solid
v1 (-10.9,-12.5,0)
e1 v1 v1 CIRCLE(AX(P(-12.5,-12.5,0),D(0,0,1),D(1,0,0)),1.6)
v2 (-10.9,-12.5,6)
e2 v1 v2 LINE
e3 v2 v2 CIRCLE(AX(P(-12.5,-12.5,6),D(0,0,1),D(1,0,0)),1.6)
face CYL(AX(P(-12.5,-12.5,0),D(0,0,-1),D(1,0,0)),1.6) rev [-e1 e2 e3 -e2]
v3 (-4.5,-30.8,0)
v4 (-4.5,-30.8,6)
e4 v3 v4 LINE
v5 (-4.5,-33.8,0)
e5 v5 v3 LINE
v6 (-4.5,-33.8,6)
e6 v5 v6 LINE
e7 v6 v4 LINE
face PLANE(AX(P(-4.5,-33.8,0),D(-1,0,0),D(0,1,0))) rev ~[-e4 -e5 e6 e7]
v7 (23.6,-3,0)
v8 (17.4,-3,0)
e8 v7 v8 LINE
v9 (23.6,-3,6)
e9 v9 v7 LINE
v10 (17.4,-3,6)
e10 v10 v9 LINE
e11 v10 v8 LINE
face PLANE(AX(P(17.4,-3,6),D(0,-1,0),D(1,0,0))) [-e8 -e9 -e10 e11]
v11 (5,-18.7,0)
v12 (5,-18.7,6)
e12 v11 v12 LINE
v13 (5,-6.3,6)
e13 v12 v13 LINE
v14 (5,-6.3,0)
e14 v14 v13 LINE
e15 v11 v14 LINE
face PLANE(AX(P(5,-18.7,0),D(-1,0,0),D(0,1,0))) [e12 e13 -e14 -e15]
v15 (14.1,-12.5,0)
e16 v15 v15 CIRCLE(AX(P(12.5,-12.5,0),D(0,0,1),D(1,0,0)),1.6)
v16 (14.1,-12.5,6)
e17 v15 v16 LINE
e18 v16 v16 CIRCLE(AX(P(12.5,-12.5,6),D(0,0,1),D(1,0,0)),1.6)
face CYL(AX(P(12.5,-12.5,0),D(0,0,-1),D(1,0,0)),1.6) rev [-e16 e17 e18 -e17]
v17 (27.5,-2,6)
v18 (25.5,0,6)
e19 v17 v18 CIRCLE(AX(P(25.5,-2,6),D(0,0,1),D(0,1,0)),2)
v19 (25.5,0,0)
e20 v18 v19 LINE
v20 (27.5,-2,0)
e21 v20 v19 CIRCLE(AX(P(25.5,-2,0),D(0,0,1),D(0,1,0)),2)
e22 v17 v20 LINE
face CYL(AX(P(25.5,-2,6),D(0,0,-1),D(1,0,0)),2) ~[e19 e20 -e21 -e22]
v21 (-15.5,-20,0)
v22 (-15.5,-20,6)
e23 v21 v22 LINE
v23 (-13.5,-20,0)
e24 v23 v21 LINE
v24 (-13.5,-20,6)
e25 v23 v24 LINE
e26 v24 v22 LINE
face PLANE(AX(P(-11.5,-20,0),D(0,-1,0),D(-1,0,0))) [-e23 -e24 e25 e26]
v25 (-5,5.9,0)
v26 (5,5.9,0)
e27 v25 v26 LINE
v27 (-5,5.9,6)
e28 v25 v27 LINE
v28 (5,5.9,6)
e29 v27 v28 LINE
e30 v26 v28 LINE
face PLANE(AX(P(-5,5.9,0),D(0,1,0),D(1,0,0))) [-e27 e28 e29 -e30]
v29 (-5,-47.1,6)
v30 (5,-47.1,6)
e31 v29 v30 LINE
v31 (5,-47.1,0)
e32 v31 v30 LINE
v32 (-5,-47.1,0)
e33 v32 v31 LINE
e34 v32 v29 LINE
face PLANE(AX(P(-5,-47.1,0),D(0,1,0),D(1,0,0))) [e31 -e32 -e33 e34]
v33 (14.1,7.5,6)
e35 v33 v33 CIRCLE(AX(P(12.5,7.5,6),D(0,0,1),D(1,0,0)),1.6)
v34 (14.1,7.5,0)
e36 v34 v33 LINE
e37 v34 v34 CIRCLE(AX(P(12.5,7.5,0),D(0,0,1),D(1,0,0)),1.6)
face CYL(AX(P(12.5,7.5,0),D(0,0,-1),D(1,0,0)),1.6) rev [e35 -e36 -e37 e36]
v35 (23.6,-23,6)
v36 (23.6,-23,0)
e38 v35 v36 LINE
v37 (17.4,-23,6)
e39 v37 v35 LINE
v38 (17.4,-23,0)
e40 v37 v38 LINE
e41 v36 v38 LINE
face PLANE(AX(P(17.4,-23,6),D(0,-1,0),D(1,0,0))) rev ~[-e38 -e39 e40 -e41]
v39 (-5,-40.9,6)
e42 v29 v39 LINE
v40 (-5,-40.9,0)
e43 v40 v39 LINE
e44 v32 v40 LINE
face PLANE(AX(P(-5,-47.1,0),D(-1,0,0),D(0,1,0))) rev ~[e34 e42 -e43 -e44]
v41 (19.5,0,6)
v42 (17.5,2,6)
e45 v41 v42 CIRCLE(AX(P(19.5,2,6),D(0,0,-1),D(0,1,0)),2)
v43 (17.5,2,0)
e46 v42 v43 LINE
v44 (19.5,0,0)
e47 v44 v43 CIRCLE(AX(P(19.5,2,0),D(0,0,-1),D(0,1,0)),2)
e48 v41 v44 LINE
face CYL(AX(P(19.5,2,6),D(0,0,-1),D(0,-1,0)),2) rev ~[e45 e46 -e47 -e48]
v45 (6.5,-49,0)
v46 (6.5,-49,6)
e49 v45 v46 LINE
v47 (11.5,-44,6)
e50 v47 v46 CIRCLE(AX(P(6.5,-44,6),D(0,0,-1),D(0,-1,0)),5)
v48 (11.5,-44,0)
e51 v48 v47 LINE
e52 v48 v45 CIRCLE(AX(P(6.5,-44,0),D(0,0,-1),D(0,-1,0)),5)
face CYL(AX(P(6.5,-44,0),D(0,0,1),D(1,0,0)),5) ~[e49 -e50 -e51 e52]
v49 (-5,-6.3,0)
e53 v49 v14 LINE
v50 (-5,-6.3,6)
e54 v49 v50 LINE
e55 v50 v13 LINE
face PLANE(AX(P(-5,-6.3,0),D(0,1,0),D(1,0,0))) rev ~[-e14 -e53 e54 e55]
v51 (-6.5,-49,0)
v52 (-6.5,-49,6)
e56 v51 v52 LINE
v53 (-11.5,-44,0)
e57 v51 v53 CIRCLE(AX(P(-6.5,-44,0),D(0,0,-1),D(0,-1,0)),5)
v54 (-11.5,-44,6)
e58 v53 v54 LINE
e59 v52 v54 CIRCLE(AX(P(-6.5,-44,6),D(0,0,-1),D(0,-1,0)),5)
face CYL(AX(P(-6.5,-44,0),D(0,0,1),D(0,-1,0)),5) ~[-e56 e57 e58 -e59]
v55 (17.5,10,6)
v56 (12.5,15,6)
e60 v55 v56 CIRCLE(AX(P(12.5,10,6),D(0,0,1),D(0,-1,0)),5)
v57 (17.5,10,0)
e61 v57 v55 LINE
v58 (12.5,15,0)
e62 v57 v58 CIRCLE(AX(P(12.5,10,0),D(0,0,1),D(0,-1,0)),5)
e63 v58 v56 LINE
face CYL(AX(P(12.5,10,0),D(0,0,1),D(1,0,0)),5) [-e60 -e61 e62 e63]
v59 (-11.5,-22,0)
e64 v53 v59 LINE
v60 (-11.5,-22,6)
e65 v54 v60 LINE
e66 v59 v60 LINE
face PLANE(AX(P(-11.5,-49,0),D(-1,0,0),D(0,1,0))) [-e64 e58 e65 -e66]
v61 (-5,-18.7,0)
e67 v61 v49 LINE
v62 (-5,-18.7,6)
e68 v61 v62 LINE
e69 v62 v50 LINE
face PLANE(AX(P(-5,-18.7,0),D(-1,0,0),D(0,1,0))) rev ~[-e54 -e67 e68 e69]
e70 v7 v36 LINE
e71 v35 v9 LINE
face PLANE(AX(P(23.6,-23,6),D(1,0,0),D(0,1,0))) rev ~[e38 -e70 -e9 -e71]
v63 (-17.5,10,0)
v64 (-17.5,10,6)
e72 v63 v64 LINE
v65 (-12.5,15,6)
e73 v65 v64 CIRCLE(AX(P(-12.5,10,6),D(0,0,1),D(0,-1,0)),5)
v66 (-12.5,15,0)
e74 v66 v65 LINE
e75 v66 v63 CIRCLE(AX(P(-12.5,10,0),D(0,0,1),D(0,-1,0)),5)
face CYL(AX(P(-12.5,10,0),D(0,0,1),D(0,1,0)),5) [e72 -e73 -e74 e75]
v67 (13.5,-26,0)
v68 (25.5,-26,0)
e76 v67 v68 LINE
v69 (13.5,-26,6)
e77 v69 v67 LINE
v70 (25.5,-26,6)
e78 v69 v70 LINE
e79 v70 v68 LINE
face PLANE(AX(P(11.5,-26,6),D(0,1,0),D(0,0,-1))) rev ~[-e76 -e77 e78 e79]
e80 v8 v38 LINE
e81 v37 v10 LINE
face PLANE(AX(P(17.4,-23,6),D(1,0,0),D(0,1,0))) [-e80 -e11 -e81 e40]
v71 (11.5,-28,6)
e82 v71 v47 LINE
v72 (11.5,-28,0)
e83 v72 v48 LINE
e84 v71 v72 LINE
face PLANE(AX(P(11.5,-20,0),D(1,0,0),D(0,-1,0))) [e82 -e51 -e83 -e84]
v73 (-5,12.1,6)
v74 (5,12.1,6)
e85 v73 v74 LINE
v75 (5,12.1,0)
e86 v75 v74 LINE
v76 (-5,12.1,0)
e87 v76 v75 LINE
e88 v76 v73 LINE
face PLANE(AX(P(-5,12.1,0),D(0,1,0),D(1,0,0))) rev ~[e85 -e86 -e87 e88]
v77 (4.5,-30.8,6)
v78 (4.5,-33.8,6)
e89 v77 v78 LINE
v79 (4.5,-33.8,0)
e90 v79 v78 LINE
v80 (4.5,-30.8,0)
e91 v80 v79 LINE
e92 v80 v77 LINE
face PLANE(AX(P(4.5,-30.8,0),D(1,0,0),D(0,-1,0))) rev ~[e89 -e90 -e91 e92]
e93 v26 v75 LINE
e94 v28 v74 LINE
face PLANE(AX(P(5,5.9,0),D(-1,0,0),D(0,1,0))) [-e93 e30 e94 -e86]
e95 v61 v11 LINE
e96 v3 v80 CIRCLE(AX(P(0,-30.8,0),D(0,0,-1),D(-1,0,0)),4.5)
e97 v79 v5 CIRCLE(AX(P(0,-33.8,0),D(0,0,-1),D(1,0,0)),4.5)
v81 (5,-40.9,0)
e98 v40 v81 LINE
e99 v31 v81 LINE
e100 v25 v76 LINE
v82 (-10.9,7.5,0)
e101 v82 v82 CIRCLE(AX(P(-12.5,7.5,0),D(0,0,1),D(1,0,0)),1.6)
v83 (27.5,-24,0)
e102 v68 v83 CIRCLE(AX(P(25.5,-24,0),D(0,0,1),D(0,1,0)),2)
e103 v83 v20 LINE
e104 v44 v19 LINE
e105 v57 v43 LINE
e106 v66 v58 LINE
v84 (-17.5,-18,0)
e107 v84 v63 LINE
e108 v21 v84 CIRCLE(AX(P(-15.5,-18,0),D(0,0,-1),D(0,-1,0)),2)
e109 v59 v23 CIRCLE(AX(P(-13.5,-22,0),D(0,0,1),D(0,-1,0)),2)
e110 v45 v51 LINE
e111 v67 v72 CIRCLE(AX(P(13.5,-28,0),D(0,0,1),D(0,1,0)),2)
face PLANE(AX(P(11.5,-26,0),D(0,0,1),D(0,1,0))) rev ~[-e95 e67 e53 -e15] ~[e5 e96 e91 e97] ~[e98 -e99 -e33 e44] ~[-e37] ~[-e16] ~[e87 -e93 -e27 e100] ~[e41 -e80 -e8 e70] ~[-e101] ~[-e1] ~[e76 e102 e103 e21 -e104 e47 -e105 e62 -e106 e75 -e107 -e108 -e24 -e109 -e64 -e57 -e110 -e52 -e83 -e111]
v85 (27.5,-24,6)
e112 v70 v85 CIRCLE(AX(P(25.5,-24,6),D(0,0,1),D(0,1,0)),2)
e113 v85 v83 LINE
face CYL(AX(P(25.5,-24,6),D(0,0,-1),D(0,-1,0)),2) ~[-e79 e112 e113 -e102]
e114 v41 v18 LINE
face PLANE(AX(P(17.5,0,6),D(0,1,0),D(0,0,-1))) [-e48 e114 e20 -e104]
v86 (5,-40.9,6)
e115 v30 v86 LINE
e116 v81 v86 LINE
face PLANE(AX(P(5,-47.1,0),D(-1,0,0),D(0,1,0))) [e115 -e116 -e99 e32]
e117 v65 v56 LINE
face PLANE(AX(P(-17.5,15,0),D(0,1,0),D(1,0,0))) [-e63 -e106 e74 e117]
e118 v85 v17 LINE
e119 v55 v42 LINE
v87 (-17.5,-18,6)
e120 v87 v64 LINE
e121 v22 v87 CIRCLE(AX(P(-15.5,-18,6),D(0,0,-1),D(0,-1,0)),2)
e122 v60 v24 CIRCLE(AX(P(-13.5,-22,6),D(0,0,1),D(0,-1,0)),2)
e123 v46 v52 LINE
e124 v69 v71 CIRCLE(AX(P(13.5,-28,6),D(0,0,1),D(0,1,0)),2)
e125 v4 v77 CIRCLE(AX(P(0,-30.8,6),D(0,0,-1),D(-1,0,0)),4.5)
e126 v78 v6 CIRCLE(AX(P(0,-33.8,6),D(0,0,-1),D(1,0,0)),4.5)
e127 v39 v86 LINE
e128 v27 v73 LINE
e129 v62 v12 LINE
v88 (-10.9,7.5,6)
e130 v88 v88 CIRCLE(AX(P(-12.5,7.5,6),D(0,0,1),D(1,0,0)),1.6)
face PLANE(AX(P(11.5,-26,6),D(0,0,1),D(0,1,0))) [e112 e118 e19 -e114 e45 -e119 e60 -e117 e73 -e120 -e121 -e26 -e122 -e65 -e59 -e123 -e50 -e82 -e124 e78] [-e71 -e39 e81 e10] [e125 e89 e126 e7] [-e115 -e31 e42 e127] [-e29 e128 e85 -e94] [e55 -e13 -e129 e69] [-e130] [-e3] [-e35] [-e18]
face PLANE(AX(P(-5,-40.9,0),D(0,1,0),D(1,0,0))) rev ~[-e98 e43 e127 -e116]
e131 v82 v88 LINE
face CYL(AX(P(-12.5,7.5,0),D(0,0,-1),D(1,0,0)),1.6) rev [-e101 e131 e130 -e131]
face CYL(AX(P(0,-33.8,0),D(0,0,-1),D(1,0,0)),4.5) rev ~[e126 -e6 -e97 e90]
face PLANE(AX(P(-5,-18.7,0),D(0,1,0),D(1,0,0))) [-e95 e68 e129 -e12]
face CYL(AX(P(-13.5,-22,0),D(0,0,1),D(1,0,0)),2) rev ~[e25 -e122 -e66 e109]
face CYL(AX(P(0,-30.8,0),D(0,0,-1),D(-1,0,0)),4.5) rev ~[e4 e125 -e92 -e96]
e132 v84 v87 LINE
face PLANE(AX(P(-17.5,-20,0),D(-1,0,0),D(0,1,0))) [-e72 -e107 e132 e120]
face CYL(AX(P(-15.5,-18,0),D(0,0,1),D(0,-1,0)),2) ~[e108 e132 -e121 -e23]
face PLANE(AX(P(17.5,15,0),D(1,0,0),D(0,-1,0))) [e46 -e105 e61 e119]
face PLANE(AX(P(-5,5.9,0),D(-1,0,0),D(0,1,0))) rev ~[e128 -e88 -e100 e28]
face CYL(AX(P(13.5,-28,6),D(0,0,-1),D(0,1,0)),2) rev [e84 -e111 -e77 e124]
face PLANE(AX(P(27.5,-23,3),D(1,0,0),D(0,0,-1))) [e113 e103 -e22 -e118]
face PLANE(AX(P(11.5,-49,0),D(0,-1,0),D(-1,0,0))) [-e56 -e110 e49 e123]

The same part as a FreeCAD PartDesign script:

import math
import FreeCAD as App
import Part
import Sketcher
from FreeCAD import Vector
Q = App.Units.Quantity


def edges_at(feature, points):
    """Names of the edges that pass closest to the given points."""
    edges = feature.Shape.Edges
    near = lambda p: min(range(len(edges)), key=lambda i: edges[i].distToShape(Part.Vertex(*p))[0])
    return sorted({f"Edge{near(p) + 1}" for p in points})

doc = App.newDocument("Part")
body = doc.addObject("PartDesign::Body", "Body")

# Sketch on XY plane
sketch1 = body.newObject("Sketcher::SketchObject", "Sketch")
sketch1.AttachmentSupport = (doc.getObject("XY_Plane"), [""])
sketch1.MapMode = "FlatFace"
sketch1.addGeometry(Part.LineSegment(Vector(11.5, -20, 0), Vector(17.5, -20, 0)), False)
sketch1.addGeometry(Part.LineSegment(Vector(17.5, -20, 0), Vector(17.5, 15, 0)), False)
sketch1.addGeometry(Part.LineSegment(Vector(17.5, 15, 0), Vector(-17.5, 15, 0)), False)
sketch1.addGeometry(Part.LineSegment(Vector(-17.5, 15, 0), Vector(-17.5, -20, 0)), False)
sketch1.addGeometry(Part.LineSegment(Vector(-17.5, -20, 0), Vector(-11.5, -20, 0)), False)
sketch1.addGeometry(Part.LineSegment(Vector(-11.5, -20, 0), Vector(-11.5, -49, 0)), False)
sketch1.addGeometry(Part.LineSegment(Vector(-11.5, -49, 0), Vector(11.5, -49, 0)), False)
sketch1.addGeometry(Part.LineSegment(Vector(11.5, -49, 0), Vector(11.5, -20, 0)), False)
sketch1.addGeometry(Part.LineSegment(Vector(-5, -47.1, 0), Vector(-5, -40.9, 0)), False)
sketch1.addGeometry(Part.LineSegment(Vector(-5, -40.9, 0), Vector(5, -40.9, 0)), False)
sketch1.addGeometry(Part.LineSegment(Vector(5, -40.9, 0), Vector(5, -47.1, 0)), False)
sketch1.addGeometry(Part.LineSegment(Vector(5, -47.1, 0), Vector(-5, -47.1, 0)), False)
sketch1.addGeometry(Part.LineSegment(Vector(-4.5, -33.8, 0), Vector(-4.5, -30.8, 0)), False)
sketch1.addGeometry(Part.ArcOfCircle(Part.Circle(Vector(0, -30.8, 0), Vector(0, 0, 1), 4.5), math.radians(0), math.radians(180)), False)
sketch1.addGeometry(Part.LineSegment(Vector(4.5, -30.8, 0), Vector(4.5, -33.8, 0)), False)
sketch1.addGeometry(Part.ArcOfCircle(Part.Circle(Vector(0, -33.8, 0), Vector(0, 0, 1), 4.5), math.radians(180), math.radians(360)), False)
sketch1.addGeometry(Part.Circle(Vector(12.5, -12.5, 0), Vector(0, 0, 1), 1.6), False)
sketch1.addGeometry(Part.Circle(Vector(12.5, 7.5, 0), Vector(0, 0, 1), 1.6), False)
sketch1.addGeometry(Part.LineSegment(Vector(-5, -18.7, 0), Vector(-5, -6.3, 0)), False)
sketch1.addGeometry(Part.LineSegment(Vector(-5, -6.3, 0), Vector(5, -6.3, 0)), False)
sketch1.addGeometry(Part.LineSegment(Vector(5, -6.3, 0), Vector(5, -18.7, 0)), False)
sketch1.addGeometry(Part.LineSegment(Vector(5, -18.7, 0), Vector(-5, -18.7, 0)), False)
sketch1.addGeometry(Part.Circle(Vector(-12.5, -12.5, 0), Vector(0, 0, 1), 1.6), False)
sketch1.addGeometry(Part.LineSegment(Vector(-5, 5.9, 0), Vector(-5, 12.1, 0)), False)
sketch1.addGeometry(Part.LineSegment(Vector(-5, 12.1, 0), Vector(5, 12.1, 0)), False)
sketch1.addGeometry(Part.LineSegment(Vector(5, 12.1, 0), Vector(5, 5.9, 0)), False)
sketch1.addGeometry(Part.LineSegment(Vector(5, 5.9, 0), Vector(-5, 5.9, 0)), False)
sketch1.addGeometry(Part.Circle(Vector(-12.5, 7.5, 0), Vector(0, 0, 1), 1.6), False)
sketch1.addConstraint(Sketcher.Constraint("Coincident", 0, 2, 1, 1))
sketch1.addConstraint(Sketcher.Constraint("Coincident", 1, 2, 2, 1))
sketch1.addConstraint(Sketcher.Constraint("Coincident", 2, 2, 3, 1))
sketch1.addConstraint(Sketcher.Constraint("Coincident", 3, 2, 4, 1))
sketch1.addConstraint(Sketcher.Constraint("Coincident", 4, 2, 5, 1))
sketch1.addConstraint(Sketcher.Constraint("Coincident", 5, 2, 6, 1))
sketch1.addConstraint(Sketcher.Constraint("Coincident", 6, 2, 7, 1))
sketch1.addConstraint(Sketcher.Constraint("Coincident", 7, 2, 0, 1))
sketch1.addConstraint(Sketcher.Constraint("Coincident", 8, 2, 9, 1))
sketch1.addConstraint(Sketcher.Constraint("Coincident", 9, 2, 10, 1))
sketch1.addConstraint(Sketcher.Constraint("Coincident", 10, 2, 11, 1))
sketch1.addConstraint(Sketcher.Constraint("Coincident", 11, 2, 8, 1))
sketch1.addConstraint(Sketcher.Constraint("Tangent", 12, 2, 13, 2))
sketch1.addConstraint(Sketcher.Constraint("Tangent", 13, 1, 14, 1))
sketch1.addConstraint(Sketcher.Constraint("Tangent", 14, 2, 15, 2))
sketch1.addConstraint(Sketcher.Constraint("Tangent", 15, 1, 12, 1))
sketch1.addConstraint(Sketcher.Constraint("Coincident", 18, 2, 19, 1))
sketch1.addConstraint(Sketcher.Constraint("Coincident", 19, 2, 20, 1))
sketch1.addConstraint(Sketcher.Constraint("Coincident", 20, 2, 21, 1))
sketch1.addConstraint(Sketcher.Constraint("Coincident", 21, 2, 18, 1))
sketch1.addConstraint(Sketcher.Constraint("Coincident", 23, 2, 24, 1))
sketch1.addConstraint(Sketcher.Constraint("Coincident", 24, 2, 25, 1))
sketch1.addConstraint(Sketcher.Constraint("Coincident", 25, 2, 26, 1))
sketch1.addConstraint(Sketcher.Constraint("Coincident", 26, 2, 23, 1))
sketch1.addConstraint(Sketcher.Constraint("Horizontal", 0))
sketch1.addConstraint(Sketcher.Constraint("Vertical", 1))
sketch1.addConstraint(Sketcher.Constraint("Horizontal", 2))
sketch1.addConstraint(Sketcher.Constraint("Vertical", 3))
sketch1.addConstraint(Sketcher.Constraint("Horizontal", 4))
sketch1.addConstraint(Sketcher.Constraint("Vertical", 5))
sketch1.addConstraint(Sketcher.Constraint("Horizontal", 6))
sketch1.addConstraint(Sketcher.Constraint("Vertical", 7))
sketch1.addConstraint(Sketcher.Constraint("Vertical", 8))
sketch1.addConstraint(Sketcher.Constraint("Horizontal", 9))
sketch1.addConstraint(Sketcher.Constraint("Vertical", 10))
sketch1.addConstraint(Sketcher.Constraint("Horizontal", 11))
sketch1.addConstraint(Sketcher.Constraint("Vertical", 12))
sketch1.addConstraint(Sketcher.Constraint("Vertical", 14))
sketch1.addConstraint(Sketcher.Constraint("Vertical", 18))
sketch1.addConstraint(Sketcher.Constraint("Horizontal", 19))
sketch1.addConstraint(Sketcher.Constraint("Vertical", 20))
sketch1.addConstraint(Sketcher.Constraint("Horizontal", 21))
sketch1.addConstraint(Sketcher.Constraint("Vertical", 23))
sketch1.addConstraint(Sketcher.Constraint("Horizontal", 24))
sketch1.addConstraint(Sketcher.Constraint("Vertical", 25))
sketch1.addConstraint(Sketcher.Constraint("Horizontal", 26))
sketch1.addConstraint(Sketcher.Constraint("Equal", 16, 17))
sketch1.addConstraint(Sketcher.Constraint("Equal", 17, 22))
sketch1.addConstraint(Sketcher.Constraint("Equal", 22, 27))
sketch1.addConstraint(Sketcher.Constraint("Symmetric", 16, 3, 22, 3, -2))
sketch1.addConstraint(Sketcher.Constraint("Symmetric", 17, 3, 27, 3, -2))
sketch1.addConstraint(Sketcher.Constraint("Symmetric", 0, 2, 3, 2, -2))
sketch1.addConstraint(Sketcher.Constraint("PointOnObject", 13, 3, -2))
sketch1.addConstraint(Sketcher.Constraint("Vertical", 16, 3, 17, 3))
sketch1.addConstraint(Sketcher.Constraint("Vertical", 11, 2, 18, 2))
sketch1.addConstraint(Sketcher.Constraint("Vertical", 10, 2, 19, 2))
sketch1.addConstraint(Sketcher.Constraint("Vertical", 21, 2, 23, 2))
sketch1.addConstraint(Sketcher.Constraint("Vertical", 20, 2, 24, 2))
sketch1.addConstraint(Sketcher.Constraint("Equal", 0, 4))
sketch1.addConstraint(Sketcher.Constraint("Equal", 2, 1))
sketch1.addConstraint(Sketcher.Constraint("Equal", 10, 23))
sketch1.addConstraint(Sketcher.Constraint("Diameter", 16, Q("3.2 mm")))
sketch1.addConstraint(Sketcher.Constraint("Radius", 13, Q("4.5 mm")))
sketch1.addConstraint(Sketcher.Constraint("DistanceX", 0, 1, 0, 2, Q("6 mm")))
sketch1.addConstraint(Sketcher.Constraint("DistanceX", 2, 2, 2, 1, Q("35 mm")))
sketch1.addConstraint(Sketcher.Constraint("DistanceX", 9, 1, 9, 2, Q("10 mm")))
sketch1.addConstraint(Sketcher.Constraint("DistanceY", 5, 2, 5, 1, Q("29 mm")))
sketch1.addConstraint(Sketcher.Constraint("DistanceY", 12, 1, 12, 2, Q("3 mm")))
sketch1.addConstraint(Sketcher.Constraint("DistanceY", 8, 1, 8, 2, Q("6.2 mm")))
sketch1.addConstraint(Sketcher.Constraint("DistanceY", 18, 1, 18, 2, Q("12.4 mm")))
sketch1.addConstraint(Sketcher.Constraint("DistanceY", 0, 2, -1, 1, Q("20 mm")))
sketch1.addConstraint(Sketcher.Constraint("DistanceX", 8, 2, -1, 1, Q("5 mm")))
sketch1.addConstraint(Sketcher.Constraint("DistanceY", 16, 3, 17, 3, Q("20 mm")))
sketch1.addConstraint(Sketcher.Constraint("DistanceX", 22, 3, 16, 3, Q("25 mm")))
sketch1.addConstraint(Sketcher.Constraint("DistanceY", 13, 3, -1, 1, Q("30.8 mm")))
sketch1.addConstraint(Sketcher.Constraint("DistanceY", 16, 3, -1, 1, Q("12.5 mm")))
sketch1.addConstraint(Sketcher.Constraint("DistanceY", 8, 2, -1, 1, Q("40.9 mm")))
sketch1.addConstraint(Sketcher.Constraint("DistanceY", 18, 2, -1, 1, Q("6.3 mm")))
sketch1.addConstraint(Sketcher.Constraint("DistanceY", -1, 1, 23, 2, Q("12.1 mm")))
pad1 = body.newObject("PartDesign::Pad", "Pad")
pad1.Profile = sketch1
pad1.Length = 6

# Sketch on YZ plane
sketch2 = body.newObject("Sketcher::SketchObject", "Sketch001")
sketch2.AttachmentSupport = (doc.getObject("YZ_Plane"), [""])
sketch2.MapMode = "FlatFace"
sketch2.AttachmentOffset = App.Placement(Vector(0, 0, 17.5), App.Rotation())
sketch2.addGeometry(Part.LineSegment(Vector(0, 6, 0), Vector(-20, 6, 0)), False)
sketch2.addGeometry(Part.LineSegment(Vector(-20, 6, 0), Vector(-20, 0, 0)), False)
sketch2.addGeometry(Part.LineSegment(Vector(-20, 0, 0), Vector(0, 0, 0)), False)
sketch2.addGeometry(Part.LineSegment(Vector(0, 0, 0), Vector(0, 6, 0)), False)
sketch2.addConstraint(Sketcher.Constraint("Coincident", 0, 2, 1, 1))
sketch2.addConstraint(Sketcher.Constraint("Coincident", 1, 2, 2, 1))
sketch2.addConstraint(Sketcher.Constraint("Coincident", 2, 2, 3, 1))
sketch2.addConstraint(Sketcher.Constraint("Coincident", 3, 2, 0, 1))
sketch2.addConstraint(Sketcher.Constraint("Horizontal", 0))
sketch2.addConstraint(Sketcher.Constraint("Vertical", 1))
sketch2.addConstraint(Sketcher.Constraint("Horizontal", 2))
sketch2.addConstraint(Sketcher.Constraint("Vertical", 3))
sketch2.addConstraint(Sketcher.Constraint("Coincident", 2, 2, -1, 1))
sketch2.addConstraint(Sketcher.Constraint("DistanceX", 0, 2, 0, 1, Q("20 mm")))
sketch2.addConstraint(Sketcher.Constraint("DistanceY", 1, 2, 1, 1, Q("6 mm")))
pad2 = body.newObject("PartDesign::Pad", "Pad001")
pad2.Profile = sketch2
pad2.Length = 10

# Sketch on YZ plane
sketch3 = body.newObject("Sketcher::SketchObject", "Sketch002")
sketch3.AttachmentSupport = (doc.getObject("YZ_Plane"), [""])
sketch3.MapMode = "FlatFace"
sketch3.AttachmentOffset = App.Placement(Vector(0, 0, 11.5), App.Rotation())
sketch3.addGeometry(Part.LineSegment(Vector(-20, 6, 0), Vector(-26, 6, 0)), False)
sketch3.addGeometry(Part.LineSegment(Vector(-26, 6, 0), Vector(-26, 0, 0)), False)
sketch3.addGeometry(Part.LineSegment(Vector(-26, 0, 0), Vector(-20, 0, 0)), False)
sketch3.addGeometry(Part.LineSegment(Vector(-20, 0, 0), Vector(-20, 6, 0)), False)
sketch3.addConstraint(Sketcher.Constraint("Coincident", 0, 2, 1, 1))
sketch3.addConstraint(Sketcher.Constraint("Coincident", 1, 2, 2, 1))
sketch3.addConstraint(Sketcher.Constraint("Coincident", 2, 2, 3, 1))
sketch3.addConstraint(Sketcher.Constraint("Coincident", 3, 2, 0, 1))
sketch3.addConstraint(Sketcher.Constraint("Horizontal", 0))
sketch3.addConstraint(Sketcher.Constraint("Vertical", 1))
sketch3.addConstraint(Sketcher.Constraint("Horizontal", 2))
sketch3.addConstraint(Sketcher.Constraint("Vertical", 3))
sketch3.addConstraint(Sketcher.Constraint("PointOnObject", 1, 2, -1))
sketch3.addConstraint(Sketcher.Constraint("Equal", 2, 1))
sketch3.addConstraint(Sketcher.Constraint("DistanceX", 0, 2, 0, 1, Q("6 mm")))
sketch3.addConstraint(Sketcher.Constraint("DistanceX", 0, 2, -1, 1, Q("26 mm")))
pad3 = body.newObject("PartDesign::Pad", "Pad002")
pad3.Profile = sketch3
pad3.Length = 16

# Sketch on XY plane
sketch4 = body.newObject("Sketcher::SketchObject", "Sketch003")
sketch4.AttachmentSupport = (doc.getObject("XY_Plane"), [""])
sketch4.MapMode = "FlatFace"
sketch4.AttachmentOffset = App.Placement(Vector(0, 0, 6), App.Rotation())
sketch4.addGeometry(Part.LineSegment(Vector(17, -3, 0), Vector(17, -23, 0)), False)
sketch4.addGeometry(Part.LineSegment(Vector(17, -23, 0), Vector(24, -23, 0)), False)
sketch4.addGeometry(Part.LineSegment(Vector(24, -23, 0), Vector(24, -3, 0)), False)
sketch4.addGeometry(Part.LineSegment(Vector(24, -3, 0), Vector(17, -3, 0)), False)
sketch4.addConstraint(Sketcher.Constraint("Coincident", 0, 2, 1, 1))
sketch4.addConstraint(Sketcher.Constraint("Coincident", 1, 2, 2, 1))
sketch4.addConstraint(Sketcher.Constraint("Coincident", 2, 2, 3, 1))
sketch4.addConstraint(Sketcher.Constraint("Coincident", 3, 2, 0, 1))
sketch4.addConstraint(Sketcher.Constraint("Vertical", 0))
sketch4.addConstraint(Sketcher.Constraint("Horizontal", 1))
sketch4.addConstraint(Sketcher.Constraint("Vertical", 2))
sketch4.addConstraint(Sketcher.Constraint("Horizontal", 3))
sketch4.addConstraint(Sketcher.Constraint("DistanceY", 0, 2, 0, 1, Q("20 mm")))
sketch4.addConstraint(Sketcher.Constraint("DistanceX", 1, 1, 1, 2, Q("6.2 mm")))
sketch4.addConstraint(Sketcher.Constraint("DistanceY", 0, 2, -1, 1, Q("23 mm")))
sketch4.addConstraint(Sketcher.Constraint("DistanceX", -1, 1, 0, 2, Q("17.4 mm")))
pocket1 = body.newObject("PartDesign::Pocket", "Pocket")
pocket1.Profile = sketch4
pocket1.Type = "UpToFirst"
doc.recompute()

fillet = body.newObject("PartDesign::Fillet", "Fillet")
fillet.Base = (pocket1, edges_at(pocket1, [
    (27.5, 0, 3),
    (11.5, -26, 3),
    (27.5, -26, 3),
    (-11.5, -20, 3),
    (-17.5, -20, 3),
    (17.5, 0, 3),
]))
fillet.Radius = 2
doc.recompute()

fillet2 = body.newObject("PartDesign::Fillet", "Fillet001")
fillet2.Base = (fillet, edges_at(fillet, [
    (-17.5, 15, 3),
    (17.5, 15, 3),
    (11.5, -49, 3),
    (-11.5, -49, 3),
]))
fillet2.Radius = 5

doc.recompute()
